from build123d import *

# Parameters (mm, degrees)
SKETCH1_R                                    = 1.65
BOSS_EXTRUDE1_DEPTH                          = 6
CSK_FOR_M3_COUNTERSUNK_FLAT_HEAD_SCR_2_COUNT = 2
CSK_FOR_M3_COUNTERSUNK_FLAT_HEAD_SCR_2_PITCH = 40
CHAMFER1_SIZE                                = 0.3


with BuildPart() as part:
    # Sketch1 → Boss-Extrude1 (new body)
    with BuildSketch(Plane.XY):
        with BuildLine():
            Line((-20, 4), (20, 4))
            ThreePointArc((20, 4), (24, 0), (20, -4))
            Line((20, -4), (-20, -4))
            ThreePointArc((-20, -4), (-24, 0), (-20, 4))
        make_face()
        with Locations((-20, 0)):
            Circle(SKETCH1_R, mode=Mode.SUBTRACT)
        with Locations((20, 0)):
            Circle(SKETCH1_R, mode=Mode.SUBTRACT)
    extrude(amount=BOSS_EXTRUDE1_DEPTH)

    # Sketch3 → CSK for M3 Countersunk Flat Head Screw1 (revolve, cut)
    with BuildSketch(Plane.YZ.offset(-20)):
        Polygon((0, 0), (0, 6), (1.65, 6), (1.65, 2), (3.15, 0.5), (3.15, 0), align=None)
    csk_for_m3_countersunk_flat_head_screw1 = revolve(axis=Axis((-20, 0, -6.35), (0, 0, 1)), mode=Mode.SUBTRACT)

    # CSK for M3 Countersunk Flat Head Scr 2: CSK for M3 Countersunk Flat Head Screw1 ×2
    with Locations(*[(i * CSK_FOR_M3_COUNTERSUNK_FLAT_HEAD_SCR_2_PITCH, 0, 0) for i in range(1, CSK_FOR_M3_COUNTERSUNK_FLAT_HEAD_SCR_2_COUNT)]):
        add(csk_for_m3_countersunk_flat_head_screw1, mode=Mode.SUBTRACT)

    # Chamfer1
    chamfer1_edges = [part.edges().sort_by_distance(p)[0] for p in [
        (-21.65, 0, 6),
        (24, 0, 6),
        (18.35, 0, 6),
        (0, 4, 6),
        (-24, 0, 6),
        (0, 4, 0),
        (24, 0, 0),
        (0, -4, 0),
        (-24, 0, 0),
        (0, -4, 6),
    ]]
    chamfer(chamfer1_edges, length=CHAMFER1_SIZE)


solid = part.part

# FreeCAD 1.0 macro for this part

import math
import FreeCAD as App
import Part
import Sketcher
Q = App.Units.Quantity


def edges_at(feature, points):
    """Names of the edges that pass closest to the given points."""
    edges = feature.Shape.Edges
    near = lambda p: min(range(len(edges)), key=lambda i: edges[i].distToShape(Part.Vertex(*p))[0])
    return sorted({f"Edge{near(p) + 1}" for p in points})

doc = App.newDocument("Part")
params = doc.addObject("Spreadsheet::Sheet", "Params")
for row, (alias, value) in enumerate([
    ("sketch1_radius", "4 mm"),
    ("sketch1_diameter", "3.3 mm"),
    ("sketch1_width", "40 mm"),
    ("pad1_length", "6 mm"),
    ("sketch2_height", "6 mm"),
    ("sketch2_height2", "4 mm"),
    ("sketch2_height3", "0.5 mm"),
    ("sketch2_width", "3.15 mm"),
    ("groove_angle", "360 deg"),
    ("linearpattern_pitch", "40 mm"),
    ("chamfer_size", "0.3 mm"),
], start=1):
    params.set(f"A{row}", alias)
    params.set(f"B{row}", "=" + value)
    params.setAlias(f"B{row}", alias)

body = doc.addObject("PartDesign::Body", "Body")

# Sketch on XY plane
sketch1 = doc.addObject("Sketcher::SketchObject", "Sketch")
body.addObject(sketch1)
sketch1.AttachmentSupport = (doc.XY_Plane, [""])
sketch1.MapMode = "FlatFace"
sketch1.addGeometry([
    Part.LineSegment(App.Vector(20, 4, 0), App.Vector(-20, 4, 0)),  # 0
    Part.ArcOfCircle(Part.Circle(App.Vector(-20, 0, 0), App.Vector(0, 0, 1), 4), math.radians(90), math.radians(270)),  # 1
    Part.LineSegment(App.Vector(-20, -4, 0), App.Vector(20, -4, 0)),  # 2
    Part.ArcOfCircle(Part.Circle(App.Vector(20, 0, 0), App.Vector(0, 0, 1), 4), math.radians(-90), math.radians(90)),  # 3
    Part.Circle(App.Vector(20, 0, 0), App.Vector(0, 0, 1), 1.65),  # 4
    Part.Circle(App.Vector(-20, 0, 0), App.Vector(0, 0, 1), 1.65),  # 5
], False)
sketch1.addConstraint([
    Sketcher.Constraint("Tangent", 0, 2, 1, 1),
    Sketcher.Constraint("Tangent", 1, 2, 2, 1),
    Sketcher.Constraint("Tangent", 2, 2, 3, 1),
    Sketcher.Constraint("Tangent", 3, 2, 0, 1),
    Sketcher.Constraint("Horizontal", 0),
    Sketcher.Constraint("Horizontal", 2),
    Sketcher.Constraint("Coincident", 4, 3, 3, 3),
    Sketcher.Constraint("Coincident", 5, 3, 1, 3),
    Sketcher.Constraint("Equal", 4, 5),
    Sketcher.Constraint("Symmetric", 1, 3, 3, 3, -1, 1),
    Sketcher.Constraint("Radius", 1, Q("4 mm")),
    Sketcher.Constraint("Diameter", 4, Q("3.3 mm")),
    Sketcher.Constraint("DistanceX", 0, 2, 0, 1, Q("40 mm")),
])
sketch1.setExpression("Constraints[10]", "Params.sketch1_radius")
sketch1.setExpression("Constraints[11]", "Params.sketch1_diameter")
sketch1.setExpression("Constraints[12]", "Params.sketch1_width")
pad1 = doc.addObject("PartDesign::Pad", "Pad")
body.addObject(pad1)
pad1.Profile = sketch1
pad1.setExpression("Length", "Params.pad1_length")

# Sketch on YZ plane
sketch2 = doc.addObject("Sketcher::SketchObject", "Sketch001")
body.addObject(sketch2)
sketch2.AttachmentSupport = (doc.YZ_Plane, [""])
sketch2.MapMode = "FlatFace"
sketch2.AttachmentOffset = App.Placement(App.Vector(0, 0, -20), App.Rotation())
sketch2.addGeometry([
    Part.LineSegment(App.Vector(0, 6, 0), App.Vector(0, 0, 0)),  # 0
    Part.LineSegment(App.Vector(0, 0, 0), App.Vector(3.15, 0, 0)),  # 1
    Part.LineSegment(App.Vector(3.15, 0, 0), App.Vector(3.15, 0.5, 0)),  # 2
    Part.LineSegment(App.Vector(3.15, 0.5, 0), App.Vector(1.65, 2, 0)),  # 3
    Part.LineSegment(App.Vector(1.65, 2, 0), App.Vector(1.65, 6, 0)),  # 4
    Part.LineSegment(App.Vector(1.65, 6, 0), App.Vector(0, 6, 0)),  # 5
], False)
sketch2.addConstraint([
    Sketcher.Constraint("Coincident", 0, 2, 1, 1),
    Sketcher.Constraint("Coincident", 1, 2, 2, 1),
    Sketcher.Constraint("Coincident", 2, 2, 3, 1),
    Sketcher.Constraint("Coincident", 3, 2, 4, 1),
    Sketcher.Constraint("Coincident", 4, 2, 5, 1),
    Sketcher.Constraint("Coincident", 5, 2, 0, 1),
    Sketcher.Constraint("Vertical", 0),
    Sketcher.Constraint("Horizontal", 1),
    Sketcher.Constraint("Vertical", 2),
    Sketcher.Constraint("Vertical", 4),
    Sketcher.Constraint("Horizontal", 5),
    Sketcher.Constraint("Coincident", 0, 2, -1, 1),
    Sketcher.Constraint("DistanceY", 0, 2, 0, 1, Q("6 mm")),
    Sketcher.Constraint("DistanceY", 4, 1, 4, 2, Q("4 mm")),
    Sketcher.Constraint("Angle", 3, Q("135 deg")),
    Sketcher.Constraint("DistanceY", 2, 1, 2, 2, Q("0.5 mm")),
    Sketcher.Constraint("DistanceX", 1, 1, 1, 2, Q("3.15 mm")),
])
sketch2.setExpression("Constraints[12]", "Params.sketch2_height")
sketch2.setExpression("Constraints[13]", "Params.sketch2_height2")
sketch2.setExpression("Constraints[15]", "Params.sketch2_height3")
sketch2.setExpression("Constraints[16]", "Params.sketch2_width")
groove = doc.addObject("PartDesign::Groove", "Groove")
body.addObject(groove)
groove.Profile = sketch2
groove.ReferenceAxis = (sketch2, ["V_Axis"])
groove.setExpression("Angle", "Params.groove_angle")
doc.recompute()

linearpattern = doc.addObject("PartDesign::LinearPattern", "LinearPattern")
body.addObject(linearpattern)
linearpattern.Originals = [groove]
linearpattern.Direction = (doc.X_Axis, [""])
linearpattern.Mode = "offset"
linearpattern.setExpression("Offset", "Params.linearpattern_pitch")
linearpattern.Occurrences = 2
body.Tip = linearpattern
doc.recompute()

chamfer = doc.addObject("PartDesign::Chamfer", "Chamfer")
body.addObject(chamfer)
chamfer.Base = (linearpattern, edges_at(linearpattern, [
    (-21.65, 0, 6),
    (24, 0, 6),
    (18.35, 0, 6),
    (0, 4, 6),
    (-24, 0, 6),
    (0, 4, 0),
    (24, 0, 0),
    (0, -4, 0),
    (-24, 0, 0),
    (0, -4, 6),
]))
chamfer.setExpression("Size", "Params.chamfer_size")

doc.recompute()
